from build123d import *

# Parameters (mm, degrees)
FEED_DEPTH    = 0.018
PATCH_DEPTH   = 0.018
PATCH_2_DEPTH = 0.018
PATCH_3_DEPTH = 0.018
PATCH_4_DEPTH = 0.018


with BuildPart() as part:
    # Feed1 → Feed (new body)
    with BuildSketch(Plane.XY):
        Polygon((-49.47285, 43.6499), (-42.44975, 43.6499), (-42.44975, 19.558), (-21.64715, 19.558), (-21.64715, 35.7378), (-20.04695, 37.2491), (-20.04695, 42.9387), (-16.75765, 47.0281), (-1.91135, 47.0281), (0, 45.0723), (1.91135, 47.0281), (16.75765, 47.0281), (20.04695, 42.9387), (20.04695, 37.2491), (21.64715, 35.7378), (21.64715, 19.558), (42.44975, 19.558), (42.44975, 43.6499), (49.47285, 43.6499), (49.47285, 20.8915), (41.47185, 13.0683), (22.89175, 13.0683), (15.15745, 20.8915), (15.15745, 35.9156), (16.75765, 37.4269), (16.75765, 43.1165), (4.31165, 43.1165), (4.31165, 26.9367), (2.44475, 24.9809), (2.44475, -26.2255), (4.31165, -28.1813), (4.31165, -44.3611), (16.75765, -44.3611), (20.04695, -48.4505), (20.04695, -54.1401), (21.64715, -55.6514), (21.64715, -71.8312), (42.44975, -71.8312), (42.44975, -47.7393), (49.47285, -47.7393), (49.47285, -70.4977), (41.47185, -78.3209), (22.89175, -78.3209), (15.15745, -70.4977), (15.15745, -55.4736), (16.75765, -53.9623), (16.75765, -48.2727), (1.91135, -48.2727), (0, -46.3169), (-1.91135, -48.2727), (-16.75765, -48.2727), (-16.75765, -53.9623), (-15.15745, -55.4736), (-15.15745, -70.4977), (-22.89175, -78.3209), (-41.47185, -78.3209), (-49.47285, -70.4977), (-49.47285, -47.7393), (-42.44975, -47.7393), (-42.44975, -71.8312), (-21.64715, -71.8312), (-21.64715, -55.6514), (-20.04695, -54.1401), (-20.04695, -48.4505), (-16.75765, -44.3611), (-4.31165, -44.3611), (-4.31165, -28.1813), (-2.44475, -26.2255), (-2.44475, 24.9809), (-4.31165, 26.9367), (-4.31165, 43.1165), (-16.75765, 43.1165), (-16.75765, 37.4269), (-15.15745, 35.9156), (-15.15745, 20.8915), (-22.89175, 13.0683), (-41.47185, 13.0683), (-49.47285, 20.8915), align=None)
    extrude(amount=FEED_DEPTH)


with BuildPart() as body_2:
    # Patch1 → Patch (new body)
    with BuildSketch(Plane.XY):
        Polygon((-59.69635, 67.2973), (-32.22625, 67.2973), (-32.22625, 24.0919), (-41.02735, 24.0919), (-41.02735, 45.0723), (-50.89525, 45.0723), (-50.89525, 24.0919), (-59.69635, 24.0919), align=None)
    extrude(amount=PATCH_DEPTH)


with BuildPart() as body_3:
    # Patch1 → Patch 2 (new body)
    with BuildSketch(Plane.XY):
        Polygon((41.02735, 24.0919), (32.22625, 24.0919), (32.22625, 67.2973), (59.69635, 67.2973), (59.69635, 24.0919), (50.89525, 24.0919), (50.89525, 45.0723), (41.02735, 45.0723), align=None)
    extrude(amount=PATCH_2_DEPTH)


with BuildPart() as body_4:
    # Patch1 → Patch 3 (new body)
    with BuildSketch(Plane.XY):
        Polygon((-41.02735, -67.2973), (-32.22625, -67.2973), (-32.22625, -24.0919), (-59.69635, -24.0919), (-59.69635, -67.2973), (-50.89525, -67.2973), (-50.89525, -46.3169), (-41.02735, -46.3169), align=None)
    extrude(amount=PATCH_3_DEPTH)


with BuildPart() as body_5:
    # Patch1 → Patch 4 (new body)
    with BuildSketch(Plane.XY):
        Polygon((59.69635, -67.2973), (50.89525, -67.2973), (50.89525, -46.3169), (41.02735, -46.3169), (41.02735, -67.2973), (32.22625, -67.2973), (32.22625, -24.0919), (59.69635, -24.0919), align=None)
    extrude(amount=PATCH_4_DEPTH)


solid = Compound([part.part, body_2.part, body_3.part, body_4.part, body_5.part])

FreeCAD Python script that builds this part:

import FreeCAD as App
import Part
import Sketcher
Q = App.Units.Quantity

doc = App.newDocument("Part")
body = doc.addObject("PartDesign::Body", "Body")

# Sketch on XY plane
sketch1 = body.newObject("Sketcher::SketchObject", "Sketch")
sketch1.AttachmentSupport = (doc.getObject("XY_Plane"), [""])
sketch1.MapMode = "FlatFace"
sketch1.addGeometry(Part.LineSegment(App.Vector(-42.4, 43.6, 0), App.Vector(-49.5, 43.6, 0)), False)
sketch1.addGeometry(Part.LineSegment(App.Vector(-49.5, 43.6, 0), App.Vector(-49.5, 20.9, 0)), False)
sketch1.addGeometry(Part.LineSegment(App.Vector(-49.5, 20.9, 0), App.Vector(-41.5, 13.1, 0)), False)
sketch1.addGeometry(Part.LineSegment(App.Vector(-41.5, 13.1, 0), App.Vector(-22.9, 13.1, 0)), False)
sketch1.addGeometry(Part.LineSegment(App.Vector(-22.9, 13.1, 0), App.Vector(-15.2, 20.9, 0)), False)
sketch1.addGeometry(Part.LineSegment(App.Vector(-15.2, 20.9, 0), App.Vector(-15.2, 35.9, 0)), False)
sketch1.addGeometry(Part.LineSegment(App.Vector(-15.2, 35.9, 0), App.Vector(-16.8, 37.4, 0)), False)
sketch1.addGeometry(Part.LineSegment(App.Vector(-16.8, 37.4, 0), App.Vector(-16.8, 43.1, 0)), False)
sketch1.addGeometry(Part.LineSegment(App.Vector(-16.8, 43.1, 0), App.Vector(-4.3, 43.1, 0)), False)
sketch1.addGeometry(Part.LineSegment(App.Vector(-4.3, 43.1, 0), App.Vector(-4.3, 26.9, 0)), False)
sketch1.addGeometry(Part.LineSegment(App.Vector(-4.3, 26.9, 0), App.Vector(-2.4, 25, 0)), False)
sketch1.addGeometry(Part.LineSegment(App.Vector(-2.4, 25, 0), App.Vector(-2.4, -26.2, 0)), False)
sketch1.addGeometry(Part.LineSegment(App.Vector(-2.4, -26.2, 0), App.Vector(-4.3, -28.2, 0)), False)
sketch1.addGeometry(Part.LineSegment(App.Vector(-4.3, -28.2, 0), App.Vector(-4.3, -44.4, 0)), False)
sketch1.addGeometry(Part.LineSegment(App.Vector(-4.3, -44.4, 0), App.Vector(-16.8, -44.4, 0)), False)
sketch1.addGeometry(Part.LineSegment(App.Vector(-16.8, -44.4, 0), App.Vector(-20, -48.5, 0)), False)
sketch1.addGeometry(Part.LineSegment(App.Vector(-20, -48.5, 0), App.Vector(-20, -54.1, 0)), False)
sketch1.addGeometry(Part.LineSegment(App.Vector(-20, -54.1, 0), App.Vector(-21.6, -55.7, 0)), False)
sketch1.addGeometry(Part.LineSegment(App.Vector(-21.6, -55.7, 0), App.Vector(-21.6, -71.8, 0)), False)
sketch1.addGeometry(Part.LineSegment(App.Vector(-21.6, -71.8, 0), App.Vector(-42.4, -71.8, 0)), False)
sketch1.addGeometry(Part.LineSegment(App.Vector(-42.4, -71.8, 0), App.Vector(-42.4, -47.7, 0)), False)
sketch1.addGeometry(Part.LineSegment(App.Vector(-42.4, -47.7, 0), App.Vector(-49.5, -47.7, 0)), False)
sketch1.addGeometry(Part.LineSegment(App.Vector(-49.5, -47.7, 0), App.Vector(-49.5, -70.5, 0)), False)
sketch1.addGeometry(Part.LineSegment(App.Vector(-49.5, -70.5, 0), App.Vector(-41.5, -78.3, 0)), False)
sketch1.addGeometry(Part.LineSegment(App.Vector(-41.5, -78.3, 0), App.Vector(-22.9, -78.3, 0)), False)
sketch1.addGeometry(Part.LineSegment(App.Vector(-22.9, -78.3, 0), App.Vector(-15.2, -70.5, 0)), False)
sketch1.addGeometry(Part.LineSegment(App.Vector(-15.2, -70.5, 0), App.Vector(-15.2, -55.5, 0)), False)
sketch1.addGeometry(Part.LineSegment(App.Vector(-15.2, -55.5, 0), App.Vector(-16.8, -54, 0)), False)
sketch1.addGeometry(Part.LineSegment(App.Vector(-16.8, -54, 0), App.Vector(-16.8, -48.3, 0)), False)
sketch1.addGeometry(Part.LineSegment(App.Vector(-16.8, -48.3, 0), App.Vector(-1.9, -48.3, 0)), False)
sketch1.addGeometry(Part.LineSegment(App.Vector(-1.9, -48.3, 0), App.Vector(0, -46.3, 0)), False)
sketch1.addGeometry(Part.LineSegment(App.Vector(0, -46.3, 0), App.Vector(1.9, -48.3, 0)), False)
sketch1.addGeometry(Part.LineSegment(App.Vector(1.9, -48.3, 0), App.Vector(16.8, -48.3, 0)), False)
sketch1.addGeometry(Part.LineSegment(App.Vector(16.8, -48.3, 0), App.Vector(16.8, -54, 0)), False)
sketch1.addGeometry(Part.LineSegment(App.Vector(16.8, -54, 0), App.Vector(15.2, -55.5, 0)), False)
sketch1.addGeometry(Part.LineSegment(App.Vector(15.2, -55.5, 0), App.Vector(15.2, -70.5, 0)), False)
sketch1.addGeometry(Part.LineSegment(App.Vector(15.2, -70.5, 0), App.Vector(22.9, -78.3, 0)), False)
sketch1.addGeometry(Part.LineSegment(App.Vector(22.9, -78.3, 0), App.Vector(41.5, -78.3, 0)), False)
sketch1.addGeometry(Part.LineSegment(App.Vector(41.5, -78.3, 0), App.Vector(49.5, -70.5, 0)), False)
sketch1.addGeometry(Part.LineSegment(App.Vector(49.5, -70.5, 0), App.Vector(49.5, -47.7, 0)), False)
sketch1.addGeometry(Part.LineSegment(App.Vector(49.5, -47.7, 0), App.Vector(42.4, -47.7, 0)), False)
sketch1.addGeometry(Part.LineSegment(App.Vector(42.4, -47.7, 0), App.Vector(42.4, -71.8, 0)), False)
sketch1.addGeometry(Part.LineSegment(App.Vector(42.4, -71.8, 0), App.Vector(21.6, -71.8, 0)), False)
sketch1.addGeometry(Part.LineSegment(App.Vector(21.6, -71.8, 0), App.Vector(21.6, -55.7, 0)), False)
sketch1.addGeometry(Part.LineSegment(App.Vector(21.6, -55.7, 0), App.Vector(20, -54.1, 0)), False)
sketch1.addGeometry(Part.LineSegment(App.Vector(20, -54.1, 0), App.Vector(20, -48.5, 0)), False)
sketch1.addGeometry(Part.LineSegment(App.Vector(20, -48.5, 0), App.Vector(16.8, -44.4, 0)), False)
sketch1.addGeometry(Part.LineSegment(App.Vector(16.8, -44.4, 0), App.Vector(4.3, -44.4, 0)), False)
sketch1.addGeometry(Part.LineSegment(App.Vector(4.3, -44.4, 0), App.Vector(4.3, -28.2, 0)), False)
sketch1.addGeometry(Part.LineSegment(App.Vector(4.3, -28.2, 0), App.Vector(2.4, -26.2, 0)), False)
sketch1.addGeometry(Part.LineSegment(App.Vector(2.4, -26.2, 0), App.Vector(2.4, 25, 0)), False)
sketch1.addGeometry(Part.LineSegment(App.Vector(2.4, 25, 0), App.Vector(4.3, 26.9, 0)), False)
sketch1.addGeometry(Part.LineSegment(App.Vector(4.3, 26.9, 0), App.Vector(4.3, 43.1, 0)), False)
sketch1.addGeometry(Part.LineSegment(App.Vector(4.3, 43.1, 0), App.Vector(16.8, 43.1, 0)), False)
sketch1.addGeometry(Part.LineSegment(App.Vector(16.8, 43.1, 0), App.Vector(16.8, 37.4, 0)), False)
sketch1.addGeometry(Part.LineSegment(App.Vector(16.8, 37.4, 0), App.Vector(15.2, 35.9, 0)), False)
sketch1.addGeometry(Part.LineSegment(App.Vector(15.2, 35.9, 0), App.Vector(15.2, 20.9, 0)), False)
sketch1.addGeometry(Part.LineSegment(App.Vector(15.2, 20.9, 0), App.Vector(22.9, 13.1, 0)), False)
sketch1.addGeometry(Part.LineSegment(App.Vector(22.9, 13.1, 0), App.Vector(41.5, 13.1, 0)), False)
sketch1.addGeometry(Part.LineSegment(App.Vector(41.5, 13.1, 0), App.Vector(49.5, 20.9, 0)), False)
sketch1.addGeometry(Part.LineSegment(App.Vector(49.5, 20.9, 0), App.Vector(49.5, 43.6, 0)), False)
sketch1.addGeometry(Part.LineSegment(App.Vector(49.5, 43.6, 0), App.Vector(42.4, 43.6, 0)), False)
sketch1.addGeometry(Part.LineSegment(App.Vector(42.4, 43.6, 0), App.Vector(42.4, 19.6, 0)), False)
sketch1.addGeometry(Part.LineSegment(App.Vector(42.4, 19.6, 0), App.Vector(21.6, 19.6, 0)), False)
sketch1.addGeometry(Part.LineSegment(App.Vector(21.6, 19.6, 0), App.Vector(21.6, 35.7, 0)), False)
sketch1.addGeometry(Part.LineSegment(App.Vector(21.6, 35.7, 0), App.Vector(20, 37.2, 0)), False)
sketch1.addGeometry(Part.LineSegment(App.Vector(20, 37.2, 0), App.Vector(20, 42.9, 0)), False)
sketch1.addGeometry(Part.LineSegment(App.Vector(20, 42.9, 0), App.Vector(16.8, 47, 0)), False)
sketch1.addGeometry(Part.LineSegment(App.Vector(16.8, 47, 0), App.Vector(1.9, 47, 0)), False)
sketch1.addGeometry(Part.LineSegment(App.Vector(1.9, 47, 0), App.Vector(0, 45.1, 0)), False)
sketch1.addGeometry(Part.LineSegment(App.Vector(0, 45.1, 0), App.Vector(-1.9, 47, 0)), False)
sketch1.addGeometry(Part.LineSegment(App.Vector(-1.9, 47, 0), App.Vector(-16.8, 47, 0)), False)
sketch1.addGeometry(Part.LineSegment(App.Vector(-16.8, 47, 0), App.Vector(-20, 42.9, 0)), False)
sketch1.addGeometry(Part.LineSegment(App.Vector(-20, 42.9, 0), App.Vector(-20, 37.2, 0)), False)
sketch1.addGeometry(Part.LineSegment(App.Vector(-20, 37.2, 0), App.Vector(-21.6, 35.7, 0)), False)
sketch1.addGeometry(Part.LineSegment(App.Vector(-21.6, 35.7, 0), App.Vector(-21.6, 19.6, 0)), False)
sketch1.addGeometry(Part.LineSegment(App.Vector(-21.6, 19.6, 0), App.Vector(-42.4, 19.6, 0)), False)
sketch1.addGeometry(Part.LineSegment(App.Vector(-42.4, 19.6, 0), App.Vector(-42.4, 43.6, 0)), False)
sketch1.addConstraint(Sketcher.Constraint("Coincident", 0, 2, 1, 1))
sketch1.addConstraint(Sketcher.Constraint("Coincident", 1, 2, 2, 1))
sketch1.addConstraint(Sketcher.Constraint("Coincident", 2, 2, 3, 1))
sketch1.addConstraint(Sketcher.Constraint("Coincident", 3, 2, 4, 1))
sketch1.addConstraint(Sketcher.Constraint("Coincident", 4, 2, 5, 1))
sketch1.addConstraint(Sketcher.Constraint("Coincident", 5, 2, 6, 1))
sketch1.addConstraint(Sketcher.Constraint("Coincident", 6, 2, 7, 1))
sketch1.addConstraint(Sketcher.Constraint("Coincident", 7, 2, 8, 1))
sketch1.addConstraint(Sketcher.Constraint("Coincident", 8, 2, 9, 1))
sketch1.addConstraint(Sketcher.Constraint("Coincident", 9, 2, 10, 1))
sketch1.addConstraint(Sketcher.Constraint("Coincident", 10, 2, 11, 1))
sketch1.addConstraint(Sketcher.Constraint("Coincident", 11, 2, 12, 1))
sketch1.addConstraint(Sketcher.Constraint("Coincident", 12, 2, 13, 1))
sketch1.addConstraint(Sketcher.Constraint("Coincident", 13, 2, 14, 1))
sketch1.addConstraint(Sketcher.Constraint("Coincident", 14, 2, 15, 1))
sketch1.addConstraint(Sketcher.Constraint("Coincident", 15, 2, 16, 1))
sketch1.addConstraint(Sketcher.Constraint("Coincident", 16, 2, 17, 1))
sketch1.addConstraint(Sketcher.Constraint("Coincident", 17, 2, 18, 1))
sketch1.addConstraint(Sketcher.Constraint("Coincident", 18, 2, 19, 1))
sketch1.addConstraint(Sketcher.Constraint("Coincident", 19, 2, 20, 1))
sketch1.addConstraint(Sketcher.Constraint("Coincident", 20, 2, 21, 1))
sketch1.addConstraint(Sketcher.Constraint("Coincident", 21, 2, 22, 1))
sketch1.addConstraint(Sketcher.Constraint("Coincident", 22, 2, 23, 1))
sketch1.addConstraint(Sketcher.Constraint("Coincident", 23, 2, 24, 1))
sketch1.addConstraint(Sketcher.Constraint("Coincident", 24, 2, 25, 1))
sketch1.addConstraint(Sketcher.Constraint("Coincident", 25, 2, 26, 1))
sketch1.addConstraint(Sketcher.Constraint("Coincident", 26, 2, 27, 1))
sketch1.addConstraint(Sketcher.Constraint("Coincident", 27, 2, 28, 1))
sketch1.addConstraint(Sketcher.Constraint("Coincident", 28, 2, 29, 1))
sketch1.addConstraint(Sketcher.Constraint("Coincident", 29, 2, 30, 1))
sketch1.addConstraint(Sketcher.Constraint("Coincident", 30, 2, 31, 1))
sketch1.addConstraint(Sketcher.Constraint("Coincident", 31, 2, 32, 1))
sketch1.addConstraint(Sketcher.Constraint("Coincident", 32, 2, 33, 1))
sketch1.addConstraint(Sketcher.Constraint("Coincident", 33, 2, 34, 1))
sketch1.addConstraint(Sketcher.Constraint("Coincident", 34, 2, 35, 1))
sketch1.addConstraint(Sketcher.Constraint("Coincident", 35, 2, 36, 1))
sketch1.addConstraint(Sketcher.Constraint("Coincident", 36, 2, 37, 1))
sketch1.addConstraint(Sketcher.Constraint("Coincident", 37, 2, 38, 1))
sketch1.addConstraint(Sketcher.Constraint("Coincident", 38, 2, 39, 1))
sketch1.addConstraint(Sketcher.Constraint("Coincident", 39, 2, 40, 1))
sketch1.addConstraint(Sketcher.Constraint("Coincident", 40, 2, 41, 1))
sketch1.addConstraint(Sketcher.Constraint("Coincident", 41, 2, 42, 1))
sketch1.addConstraint(Sketcher.Constraint("Coincident", 42, 2, 43, 1))
sketch1.addConstraint(Sketcher.Constraint("Coincident", 43, 2, 44, 1))
sketch1.addConstraint(Sketcher.Constraint("Coincident", 44, 2, 45, 1))
sketch1.addConstraint(Sketcher.Constraint("Coincident", 45, 2, 46, 1))
sketch1.addConstraint(Sketcher.Constraint("Coincident", 46, 2, 47, 1))
sketch1.addConstraint(Sketcher.Constraint("Coincident", 47, 2, 48, 1))
sketch1.addConstraint(Sketcher.Constraint("Coincident", 48, 2, 49, 1))
sketch1.addConstraint(Sketcher.Constraint("Coincident", 49, 2, 50, 1))
sketch1.addConstraint(Sketcher.Constraint("Coincident", 50, 2, 51, 1))
sketch1.addConstraint(Sketcher.Constraint("Coincident", 51, 2, 52, 1))
sketch1.addConstraint(Sketcher.Constraint("Coincident", 52, 2, 53, 1))
sketch1.addConstraint(Sketcher.Constraint("Coincident", 53, 2, 54, 1))
sketch1.addConstraint(Sketcher.Constraint("Coincident", 54, 2, 55, 1))
sketch1.addConstraint(Sketcher.Constraint("Coincident", 55, 2, 56, 1))
sketch1.addConstraint(Sketcher.Constraint("Coincident", 56, 2, 57, 1))
sketch1.addConstraint(Sketcher.Constraint("Coincident", 57, 2, 58, 1))
sketch1.addConstraint(Sketcher.Constraint("Coincident", 58, 2, 59, 1))
sketch1.addConstraint(Sketcher.Constraint("Coincident", 59, 2, 60, 1))
sketch1.addConstraint(Sketcher.Constraint("Coincident", 60, 2, 61, 1))
sketch1.addConstraint(Sketcher.Constraint("Coincident", 61, 2, 62, 1))
sketch1.addConstraint(Sketcher.Constraint("Coincident", 62, 2, 63, 1))
sketch1.addConstraint(Sketcher.Constraint("Coincident", 63, 2, 64, 1))
sketch1.addConstraint(Sketcher.Constraint("Coincident", 64, 2, 65, 1))
sketch1.addConstraint(Sketcher.Constraint("Coincident", 65, 2, 66, 1))
sketch1.addConstraint(Sketcher.Constraint("Coincident", 66, 2, 67, 1))
sketch1.addConstraint(Sketcher.Constraint("Coincident", 67, 2, 68, 1))
sketch1.addConstraint(Sketcher.Constraint("Coincident", 68, 2, 69, 1))
sketch1.addConstraint(Sketcher.Constraint("Coincident", 69, 2, 70, 1))
sketch1.addConstraint(Sketcher.Constraint("Coincident", 70, 2, 71, 1))
sketch1.addConstraint(Sketcher.Constraint("Coincident", 71, 2, 72, 1))
sketch1.addConstraint(Sketcher.Constraint("Coincident", 72, 2, 73, 1))
sketch1.addConstraint(Sketcher.Constraint("Coincident", 73, 2, 74, 1))
sketch1.addConstraint(Sketcher.Constraint("Coincident", 74, 2, 75, 1))
sketch1.addConstraint(Sketcher.Constraint("Coincident", 75, 2, 76, 1))
sketch1.addConstraint(Sketcher.Constraint("Coincident", 76, 2, 77, 1))
sketch1.addConstraint(Sketcher.Constraint("Coincident", 77, 2, 0, 1))
sketch1.addConstraint(Sketcher.Constraint("Horizontal", 0))
sketch1.addConstraint(Sketcher.Constraint("Vertical", 1))
sketch1.addConstraint(Sketcher.Constraint("Horizontal", 3))
sketch1.addConstraint(Sketcher.Constraint("Vertical", 5))
sketch1.addConstraint(Sketcher.Constraint("Vertical", 7))
sketch1.addConstraint(Sketcher.Constraint("Horizontal", 8))
sketch1.addConstraint(Sketcher.Constraint("Vertical", 9))
sketch1.addConstraint(Sketcher.Constraint("Vertical", 11))
sketch1.addConstraint(Sketcher.Constraint("Vertical", 13))
sketch1.addConstraint(Sketcher.Constraint("Horizontal", 14))
sketch1.addConstraint(Sketcher.Constraint("Vertical", 16))
sketch1.addConstraint(Sketcher.Constraint("Vertical", 18))
sketch1.addConstraint(Sketcher.Constraint("Horizontal", 19))
sketch1.addConstraint(Sketcher.Constraint("Vertical", 20))
sketch1.addConstraint(Sketcher.Constraint("Horizontal", 21))
sketch1.addConstraint(Sketcher.Constraint("Vertical", 22))
sketch1.addConstraint(Sketcher.Constraint("Horizontal", 24))
sketch1.addConstraint(Sketcher.Constraint("Vertical", 26))
sketch1.addConstraint(Sketcher.Constraint("Vertical", 28))
sketch1.addConstraint(Sketcher.Constraint("Horizontal", 29))
sketch1.addConstraint(Sketcher.Constraint("Horizontal", 32))
sketch1.addConstraint(Sketcher.Constraint("Vertical", 33))
sketch1.addConstraint(Sketcher.Constraint("Vertical", 35))
sketch1.addConstraint(Sketcher.Constraint("Horizontal", 37))
sketch1.addConstraint(Sketcher.Constraint("Vertical", 39))
sketch1.addConstraint(Sketcher.Constraint("Horizontal", 40))
sketch1.addConstraint(Sketcher.Constraint("Vertical", 41))
sketch1.addConstraint(Sketcher.Constraint("Horizontal", 42))
sketch1.addConstraint(Sketcher.Constraint("Vertical", 43))
sketch1.addConstraint(Sketcher.Constraint("Vertical", 45))
sketch1.addConstraint(Sketcher.Constraint("Horizontal", 47))
sketch1.addConstraint(Sketcher.Constraint("Vertical", 48))
sketch1.addConstraint(Sketcher.Constraint("Vertical", 50))
sketch1.addConstraint(Sketcher.Constraint("Vertical", 52))
sketch1.addConstraint(Sketcher.Constraint("Horizontal", 53))
sketch1.addConstraint(Sketcher.Constraint("Vertical", 54))
sketch1.addConstraint(Sketcher.Constraint("Vertical", 56))
sketch1.addConstraint(Sketcher.Constraint("Horizontal", 58))
sketch1.addConstraint(Sketcher.Constraint("Vertical", 60))
sketch1.addConstraint(Sketcher.Constraint("Horizontal", 61))
sketch1.addConstraint(Sketcher.Constraint("Vertical", 62))
sketch1.addConstraint(Sketcher.Constraint("Horizontal", 63))
sketch1.addConstraint(Sketcher.Constraint("Vertical", 64))
sketch1.addConstraint(Sketcher.Constraint("Vertical", 66))
sketch1.addConstraint(Sketcher.Constraint("Horizontal", 68))
sketch1.addConstraint(Sketcher.Constraint("Horizontal", 71))
sketch1.addConstraint(Sketcher.Constraint("Vertical", 73))
sketch1.addConstraint(Sketcher.Constraint("Vertical", 75))
sketch1.addConstraint(Sketcher.Constraint("Horizontal", 76))
sketch1.addConstraint(Sketcher.Constraint("Vertical", 77))
sketch1.addConstraint(Sketcher.Constraint("Symmetric", 29, 2, 31, 2, -2))
sketch1.addConstraint(Sketcher.Constraint("Symmetric", 27, 2, 33, 2, -2))
sketch1.addConstraint(Sketcher.Constraint("Symmetric", 26, 2, 34, 2, -2))
sketch1.addConstraint(Sketcher.Constraint("Symmetric", 24, 2, 36, 2, -2))
sketch1.addConstraint(Sketcher.Constraint("Symmetric", 22, 2, 38, 2, -2))
sketch1.addConstraint(Sketcher.Constraint("Symmetric", 20, 2, 40, 2, -2))
sketch1.addConstraint(Sketcher.Constraint("Symmetric", 18, 2, 42, 2, -2))
sketch1.addConstraint(Sketcher.Constraint("Symmetric", 16, 2, 44, 2, -2))
sketch1.addConstraint(Sketcher.Constraint("Symmetric", 14, 2, 46, 2, -2))
sketch1.addConstraint(Sketcher.Constraint("Symmetric", 12, 2, 48, 2, -2))
sketch1.addConstraint(Sketcher.Constraint("Symmetric", 11, 2, 49, 2, -2))
sketch1.addConstraint(Sketcher.Constraint("Symmetric", 9, 2, 51, 2, -2))
sketch1.addConstraint(Sketcher.Constraint("Symmetric", 7, 2, 53, 2, -2))
sketch1.addConstraint(Sketcher.Constraint("Symmetric", 5, 2, 55, 2, -2))
sketch1.addConstraint(Sketcher.Constraint("Symmetric", 3, 2, 57, 2, -2))
sketch1.addConstraint(Sketcher.Constraint("Symmetric", 1, 2, 59, 2, -2))
sketch1.addConstraint(Sketcher.Constraint("Symmetric", 68, 2, 70, 2, -2))
sketch1.addConstraint(Sketcher.Constraint("Symmetric", 66, 2, 72, 2, -2))
sketch1.addConstraint(Sketcher.Constraint("Symmetric", 64, 2, 74, 2, -2))
sketch1.addConstraint(Sketcher.Constraint("Symmetric", 62, 2, 76, 2, -2))
sketch1.addConstraint(Sketcher.Constraint("PointOnObject", 30, 2, -2))
sketch1.addConstraint(Sketcher.Constraint("PointOnObject", 69, 2, -2))
sketch1.addConstraint(Sketcher.Constraint("Parallel", 2, 23))
sketch1.addConstraint(Sketcher.Constraint("Parallel", 4, 25))
sketch1.addConstraint(Sketcher.Constraint("Parallel", 6, 27))
sketch1.addConstraint(Sketcher.Constraint("Parallel", 17, 34))
sketch1.addConstraint(Sketcher.Constraint("Parallel", 27, 44))
sketch1.addConstraint(Sketcher.Constraint("Parallel", 10, 49))
sketch1.addConstraint(Sketcher.Constraint("Parallel", 12, 51))
sketch1.addConstraint(Sketcher.Constraint("Parallel", 34, 55))
sketch1.addConstraint(Sketcher.Constraint("Parallel", 36, 57))
sketch1.addConstraint(Sketcher.Constraint("Parallel", 38, 59))
sketch1.addConstraint(Sketcher.Constraint("Parallel", 44, 65))
sketch1.addConstraint(Sketcher.Constraint("Parallel", 46, 67))
sketch1.addConstraint(Sketcher.Constraint("Parallel", 30, 69))
sketch1.addConstraint(Sketcher.Constraint("Parallel", 15, 72))
sketch1.addConstraint(Sketcher.Constraint("Parallel", 55, 74))
sketch1.addConstraint(Sketcher.Constraint("Horizontal", 1, 2, 4, 2))
sketch1.addConstraint(Sketcher.Constraint("Horizontal", 22, 2, 25, 2))
sketch1.addConstraint(Sketcher.Constraint("Horizontal", 25, 2, 35, 2))
sketch1.addConstraint(Sketcher.Constraint("Horizontal", 15, 2, 45, 2))
sketch1.addConstraint(Sketcher.Constraint("Horizontal", 0, 2, 60, 2))
sketch1.addConstraint(Sketcher.Constraint("Vertical", 9, 2, 12, 2))
sketch1.addConstraint(Sketcher.Constraint("Vertical", 7, 2, 14, 2))
sketch1.addConstraint(Sketcher.Constraint("Vertical", 1, 2, 21, 2))
sketch1.addConstraint(Sketcher.Constraint("Vertical", 2, 2, 23, 2))
sketch1.addConstraint(Sketcher.Constraint("Vertical", 3, 2, 24, 2))
sketch1.addConstraint(Sketcher.Constraint("Vertical", 14, 2, 27, 2))
sketch1.addConstraint(Sketcher.Constraint("Vertical", 41, 2, 61, 2))
sketch1.addConstraint(Sketcher.Constraint("Vertical", 43, 2, 63, 2))
sketch1.addConstraint(Sketcher.Constraint("Vertical", 45, 2, 65, 2))
sketch1.addConstraint(Sketcher.Constraint("Vertical", 54, 2, 67, 2))
sketch1.addConstraint(Sketcher.Constraint("Vertical", 31, 2, 68, 2))
sketch1.addConstraint(Sketcher.Constraint("Equal", 24, 37))
sketch1.addConstraint(Sketcher.Constraint("Equal", 9, 13))
sketch1.addConstraint(Sketcher.Constraint("Equal", 7, 16))
sketch1.addConstraint(Sketcher.Constraint("Equal", 13, 18))
sketch1.addConstraint(Sketcher.Constraint("Equal", 1, 22))
sketch1.addConstraint(Sketcher.Constraint("Equal", 5, 26))
sketch1.addConstraint(Sketcher.Constraint("Equal", 16, 28))
sketch1.addConstraint(Sketcher.Constraint("Equal", 41, 62))
sketch1.addConstraint(Sketcher.Constraint("Equal", 52, 64))
sketch1.addConstraint(Sketcher.Constraint("Equal", 54, 66))
sketch1.addConstraint(Sketcher.Constraint("Equal", 6, 17))
sketch1.addConstraint(Sketcher.Constraint("DistanceX", 8, 1, 8, 2, Q("0.49 in")))
sketch1.addConstraint(Sketcher.Constraint("DistanceX", 19, 2, 19, 1, Q("0.819 in")))
sketch1.addConstraint(Sketcher.Constraint("DistanceY", 1, 2, 1, 1, Q("0.896 in")))
sketch1.addConstraint(Sketcher.Constraint("DistanceY", 7, 1, 7, 2, Q("0.224 in")))
sketch1.addConstraint(Sketcher.Constraint("DistanceY", 9, 2, 9, 1, Q("0.637 in")))
sketch1.addConstraint(Sketcher.Constraint("DistanceY", 11, 2, 11, 1, Q("2.016 in")))
sketch1.addConstraint(Sketcher.Constraint("DistanceY", -1, 1, 62, 2, Q("0.77 in")))
sketch1.addConstraint(Sketcher.Constraint("DistanceX", 0, 2, 0, 1, Q("0.2765 in")))
sketch1.addConstraint(Sketcher.Constraint("DistanceX", 3, 1, 3, 2, Q("0.7315 in")))
sketch1.addConstraint(Sketcher.Constraint("DistanceX", 29, 1, 29, 2, Q("0.5845 in")))
sketch1.addConstraint(Sketcher.Constraint("DistanceY", 5, 1, 5, 2, Q("0.5915 in")))
sketch1.addConstraint(Sketcher.Constraint("DistanceY", 20, 1, 20, 2, Q("0.9485 in")))
sketch1.addConstraint(Sketcher.Constraint("DistanceY", 17, 2, -1, 1, Q("2.191 in")))
sketch1.addConstraint(Sketcher.Constraint("DistanceY", -1, 1, 2, 2, Q("0.5145 in")))
sketch1.addConstraint(Sketcher.Constraint("DistanceY", -1, 1, 6, 2, Q("1.4735 in")))
sketch1.addConstraint(Sketcher.Constraint("DistanceY", -1, 1, 10, 2, Q("0.9835 in")))
sketch1.addConstraint(Sketcher.Constraint("DistanceY", 30, 2, -1, 1, Q("1.8235 in")))
sketch1.addConstraint(Sketcher.Constraint("Distance", 6, Q("2.201061 mm")))
sketch1.addConstraint(Sketcher.Constraint("Distance", 30, Q("2.734669 mm")))
sketch1.addConstraint(Sketcher.Constraint("DistanceX", 0, 2, -1, 1, Q("49.47285 mm")))
sketch1.addConstraint(Sketcher.Constraint("DistanceX", 2, 2, -1, 1, Q("41.47185 mm")))
sketch1.addConstraint(Sketcher.Constraint("DistanceX", 10, 2, -1, 1, Q("2.44475 mm")))
pad1 = body.newObject("PartDesign::Pad", "Pad")
pad1.Profile = sketch1
pad1.Length = 0.018
body2 = doc.addObject("PartDesign::Body", "Body001")

# Sketch on XY plane
sketch2 = body2.newObject("Sketcher::SketchObject", "Sketch001")
sketch2.AttachmentSupport = (doc.getObject("XY_Plane001"), [""])
sketch2.MapMode = "FlatFace"
sketch2.addGeometry(Part.LineSegment(App.Vector(-32, 67, 0), App.Vector(-60, 67, 0)), False)
sketch2.addGeometry(Part.LineSegment(App.Vector(-60, 67, 0), App.Vector(-60, 24, 0)), False)
sketch2.addGeometry(Part.LineSegment(App.Vector(-60, 24, 0), App.Vector(-51, 24, 0)), False)
sketch2.addGeometry(Part.LineSegment(App.Vector(-51, 24, 0), App.Vector(-51, 45, 0)), False)
sketch2.addGeometry(Part.LineSegment(App.Vector(-51, 45, 0), App.Vector(-41, 45, 0)), False)
sketch2.addGeometry(Part.LineSegment(App.Vector(-41, 45, 0), App.Vector(-41, 24, 0)), False)
sketch2.addGeometry(Part.LineSegment(App.Vector(-41, 24, 0), App.Vector(-32, 24, 0)), False)
sketch2.addGeometry(Part.LineSegment(App.Vector(-32, 24, 0), App.Vector(-32, 67, 0)), False)
sketch2.addConstraint(Sketcher.Constraint("Coincident", 0, 2, 1, 1))
sketch2.addConstraint(Sketcher.Constraint("Coincident", 1, 2, 2, 1))
sketch2.addConstraint(Sketcher.Constraint("Coincident", 2, 2, 3, 1))
sketch2.addConstraint(Sketcher.Constraint("Coincident", 3, 2, 4, 1))
sketch2.addConstraint(Sketcher.Constraint("Coincident", 4, 2, 5, 1))
sketch2.addConstraint(Sketcher.Constraint("Coincident", 5, 2, 6, 1))
sketch2.addConstraint(Sketcher.Constraint("Coincident", 6, 2, 7, 1))
sketch2.addConstraint(Sketcher.Constraint("Coincident", 7, 2, 0, 1))
sketch2.addConstraint(Sketcher.Constraint("Horizontal", 0))
sketch2.addConstraint(Sketcher.Constraint("Vertical", 1))
sketch2.addConstraint(Sketcher.Constraint("Horizontal", 2))
sketch2.addConstraint(Sketcher.Constraint("Vertical", 3))
sketch2.addConstraint(Sketcher.Constraint("Horizontal", 4))
sketch2.addConstraint(Sketcher.Constraint("Vertical", 5))
sketch2.addConstraint(Sketcher.Constraint("Horizontal", 6))
sketch2.addConstraint(Sketcher.Constraint("Vertical", 7))
sketch2.addConstraint(Sketcher.Constraint("Horizontal", 2, 2, 5, 2))
sketch2.addConstraint(Sketcher.Constraint("Equal", 2, 6))
sketch2.addConstraint(Sketcher.Constraint("DistanceY", 1, 2, 1, 1, Q("1.701 in")))
sketch2.addConstraint(Sketcher.Constraint("DistanceY", 3, 1, 3, 2, Q("0.826 in")))
sketch2.addConstraint(Sketcher.Constraint("DistanceX", 0, 2, 0, 1, Q("1.0815 in")))
sketch2.addConstraint(Sketcher.Constraint("DistanceX", 2, 1, 2, 2, Q("0.3465 in")))
sketch2.addConstraint(Sketcher.Constraint("DistanceY", -1, 1, 0, 2, Q("2.6495 in")))
sketch2.addConstraint(Sketcher.Constraint("DistanceX", 0, 2, -1, 1, Q("59.69635 mm")))
pad2 = body2.newObject("PartDesign::Pad", "Pad001")
pad2.Profile = sketch2
pad2.Length = 0.018
body3 = doc.addObject("PartDesign::Body", "Body002")

# Sketch on XY plane
sketch3 = body3.newObject("Sketcher::SketchObject", "Sketch002")
sketch3.AttachmentSupport = (doc.getObject("XY_Plane002"), [""])
sketch3.MapMode = "FlatFace"
sketch3.addGeometry(Part.LineSegment(App.Vector(32, 24, 0), App.Vector(41, 24, 0)), False)
sketch3.addGeometry(Part.LineSegment(App.Vector(41, 24, 0), App.Vector(41, 45, 0)), False)
sketch3.addGeometry(Part.LineSegment(App.Vector(41, 45, 0), App.Vector(51, 45, 0)), False)
sketch3.addGeometry(Part.LineSegment(App.Vector(51, 45, 0), App.Vector(51, 24, 0)), False)
sketch3.addGeometry(Part.LineSegment(App.Vector(51, 24, 0), App.Vector(60, 24, 0)), False)
sketch3.addGeometry(Part.LineSegment(App.Vector(60, 24, 0), App.Vector(60, 67, 0)), False)
sketch3.addGeometry(Part.LineSegment(App.Vector(60, 67, 0), App.Vector(32, 67, 0)), False)
sketch3.addGeometry(Part.LineSegment(App.Vector(32, 67, 0), App.Vector(32, 24, 0)), False)
sketch3.addConstraint(Sketcher.Constraint("Coincident", 0, 2, 1, 1))
sketch3.addConstraint(Sketcher.Constraint("Coincident", 1, 2, 2, 1))
sketch3.addConstraint(Sketcher.Constraint("Coincident", 2, 2, 3, 1))
sketch3.addConstraint(Sketcher.Constraint("Coincident", 3, 2, 4, 1))
sketch3.addConstraint(Sketcher.Constraint("Coincident", 4, 2, 5, 1))
sketch3.addConstraint(Sketcher.Constraint("Coincident", 5, 2, 6, 1))
sketch3.addConstraint(Sketcher.Constraint("Coincident", 6, 2, 7, 1))
sketch3.addConstraint(Sketcher.Constraint("Coincident", 7, 2, 0, 1))
sketch3.addConstraint(Sketcher.Constraint("Horizontal", 0))
sketch3.addConstraint(Sketcher.Constraint("Vertical", 1))
sketch3.addConstraint(Sketcher.Constraint("Horizontal", 2))
sketch3.addConstraint(Sketcher.Constraint("Vertical", 3))
sketch3.addConstraint(Sketcher.Constraint("Horizontal", 4))
sketch3.addConstraint(Sketcher.Constraint("Vertical", 5))
sketch3.addConstraint(Sketcher.Constraint("Horizontal", 6))
sketch3.addConstraint(Sketcher.Constraint("Vertical", 7))
sketch3.addConstraint(Sketcher.Constraint("Horizontal", 0, 2, 3, 2))
sketch3.addConstraint(Sketcher.Constraint("Equal", 0, 4))
sketch3.addConstraint(Sketcher.Constraint("DistanceY", 1, 1, 1, 2, Q("0.826 in")))
sketch3.addConstraint(Sketcher.Constraint("DistanceY", 5, 1, 5, 2, Q("1.701 in")))
sketch3.addConstraint(Sketcher.Constraint("DistanceX", 0, 1, 0, 2, Q("0.3465 in")))
sketch3.addConstraint(Sketcher.Constraint("DistanceX", 2, 1, 2, 2, Q("0.3885 in")))
sketch3.addConstraint(Sketcher.Constraint("DistanceY", -1, 1, 0, 2, Q("0.9485 in")))
sketch3.addConstraint(Sketcher.Constraint("DistanceX", -1, 1, 0, 2, Q("41.02735 mm")))
pad3 = body3.newObject("PartDesign::Pad", "Pad002")
pad3.Profile = sketch3
pad3.Length = 0.018
body4 = doc.addObject("PartDesign::Body", "Body003")

# Sketch on XY plane
sketch4 = body4.newObject("Sketcher::SketchObject", "Sketch003")
sketch4.AttachmentSupport = (doc.getObject("XY_Plane003"), [""])
sketch4.MapMode = "FlatFace"
sketch4.addGeometry(Part.LineSegment(App.Vector(-41, -67, 0), App.Vector(-32, -67, 0)), False)
sketch4.addGeometry(Part.LineSegment(App.Vector(-32, -67, 0), App.Vector(-32, -24, 0)), False)
sketch4.addGeometry(Part.LineSegment(App.Vector(-32, -24, 0), App.Vector(-60, -24, 0)), False)
sketch4.addGeometry(Part.LineSegment(App.Vector(-60, -24, 0), App.Vector(-60, -67, 0)), False)
sketch4.addGeometry(Part.LineSegment(App.Vector(-60, -67, 0), App.Vector(-51, -67, 0)), False)
sketch4.addGeometry(Part.LineSegment(App.Vector(-51, -67, 0), App.Vector(-51, -46, 0)), False)
sketch4.addGeometry(Part.LineSegment(App.Vector(-51, -46, 0), App.Vector(-41, -46, 0)), False)
sketch4.addGeometry(Part.LineSegment(App.Vector(-41, -46, 0), App.Vector(-41, -67, 0)), False)
sketch4.addConstraint(Sketcher.Constraint("Coincident", 0, 2, 1, 1))
sketch4.addConstraint(Sketcher.Constraint("Coincident", 1, 2, 2, 1))
sketch4.addConstraint(Sketcher.Constraint("Coincident", 2, 2, 3, 1))
sketch4.addConstraint(Sketcher.Constraint("Coincident", 3, 2, 4, 1))
sketch4.addConstraint(Sketcher.Constraint("Coincident", 4, 2, 5, 1))
sketch4.addConstraint(Sketcher.Constraint("Coincident", 5, 2, 6, 1))
sketch4.addConstraint(Sketcher.Constraint("Coincident", 6, 2, 7, 1))
sketch4.addConstraint(Sketcher.Constraint("Coincident", 7, 2, 0, 1))
sketch4.addConstraint(Sketcher.Constraint("Horizontal", 0))
sketch4.addConstraint(Sketcher.Constraint("Vertical", 1))
sketch4.addConstraint(Sketcher.Constraint("Horizontal", 2))
sketch4.addConstraint(Sketcher.Constraint("Vertical", 3))
sketch4.addConstraint(Sketcher.Constraint("Horizontal", 4))
sketch4.addConstraint(Sketcher.Constraint("Vertical", 5))
sketch4.addConstraint(Sketcher.Constraint("Horizontal", 6))
sketch4.addConstraint(Sketcher.Constraint("Vertical", 7))
sketch4.addConstraint(Sketcher.Constraint("Horizontal", 0, 2, 3, 2))
sketch4.addConstraint(Sketcher.Constraint("Equal", 0, 4))
sketch4.addConstraint(Sketcher.Constraint("DistanceY", 1, 1, 1, 2, Q("1.701 in")))
sketch4.addConstraint(Sketcher.Constraint("DistanceY", 5, 1, 5, 2, Q("0.826 in")))
sketch4.addConstraint(Sketcher.Constraint("DistanceX", 0, 1, 0, 2, Q("0.3465 in")))
sketch4.addConstraint(Sketcher.Constraint("DistanceX", 2, 2, 2, 1, Q("1.0815 in")))
sketch4.addConstraint(Sketcher.Constraint("DistanceY", 0, 2, -1, 1, Q("2.6495 in")))
sketch4.addConstraint(Sketcher.Constraint("DistanceX", 0, 2, -1, 1, Q("32.22625 mm")))
pad4 = body4.newObject("PartDesign::Pad", "Pad003")
pad4.Profile = sketch4
pad4.Length = 0.018
body5 = doc.addObject("PartDesign::Body", "Body004")

# Sketch on XY plane
sketch5 = body5.newObject("Sketcher::SketchObject", "Sketch004")
sketch5.AttachmentSupport = (doc.getObject("XY_Plane004"), [""])
sketch5.MapMode = "FlatFace"
sketch5.addGeometry(Part.LineSegment(App.Vector(51, -67, 0), App.Vector(60, -67, 0)), False)
sketch5.addGeometry(Part.LineSegment(App.Vector(60, -67, 0), App.Vector(60, -24, 0)), False)
sketch5.addGeometry(Part.LineSegment(App.Vector(60, -24, 0), App.Vector(32, -24, 0)), False)
sketch5.addGeometry(Part.LineSegment(App.Vector(32, -24, 0), App.Vector(32, -67, 0)), False)
sketch5.addGeometry(Part.LineSegment(App.Vector(32, -67, 0), App.Vector(41, -67, 0)), False)
sketch5.addGeometry(Part.LineSegment(App.Vector(41, -67, 0), App.Vector(41, -46, 0)), False)
sketch5.addGeometry(Part.LineSegment(App.Vector(41, -46, 0), App.Vector(51, -46, 0)), False)
sketch5.addGeometry(Part.LineSegment(App.Vector(51, -46, 0), App.Vector(51, -67, 0)), False)
sketch5.addConstraint(Sketcher.Constraint("Coincident", 0, 2, 1, 1))
sketch5.addConstraint(Sketcher.Constraint("Coincident", 1, 2, 2, 1))
sketch5.addConstraint(Sketcher.Constraint("Coincident", 2, 2, 3, 1))
sketch5.addConstraint(Sketcher.Constraint("Coincident", 3, 2, 4, 1))
sketch5.addConstraint(Sketcher.Constraint("Coincident", 4, 2, 5, 1))
sketch5.addConstraint(Sketcher.Constraint("Coincident", 5, 2, 6, 1))
sketch5.addConstraint(Sketcher.Constraint("Coincident", 6, 2, 7, 1))
sketch5.addConstraint(Sketcher.Constraint("Coincident", 7, 2, 0, 1))
sketch5.addConstraint(Sketcher.Constraint("Horizontal", 0))
sketch5.addConstraint(Sketcher.Constraint("Vertical", 1))
sketch5.addConstraint(Sketcher.Constraint("Horizontal", 2))
sketch5.addConstraint(Sketcher.Constraint("Vertical", 3))
sketch5.addConstraint(Sketcher.Constraint("Horizontal", 4))
sketch5.addConstraint(Sketcher.Constraint("Vertical", 5))
sketch5.addConstraint(Sketcher.Constraint("Horizontal", 6))
sketch5.addConstraint(Sketcher.Constraint("Vertical", 7))
sketch5.addConstraint(Sketcher.Constraint("Horizontal", 0, 2, 3, 2))
sketch5.addConstraint(Sketcher.Constraint("Equal", 0, 4))
sketch5.addConstraint(Sketcher.Constraint("DistanceY", 1, 1, 1, 2, Q("1.701 in")))
sketch5.addConstraint(Sketcher.Constraint("DistanceY", 5, 1, 5, 2, Q("0.826 in")))
sketch5.addConstraint(Sketcher.Constraint("DistanceX", 0, 1, 0, 2, Q("0.3465 in")))
sketch5.addConstraint(Sketcher.Constraint("DistanceX", 2, 2, 2, 1, Q("1.0815 in")))
sketch5.addConstraint(Sketcher.Constraint("DistanceY", 0, 2, -1, 1, Q("2.6495 in")))
sketch5.addConstraint(Sketcher.Constraint("DistanceX", -1, 1, 0, 2, Q("59.69635 mm")))
pad5 = body5.newObject("PartDesign::Pad", "Pad004")
pad5.Profile = sketch5
pad5.Length = 0.018

doc.recompute()
